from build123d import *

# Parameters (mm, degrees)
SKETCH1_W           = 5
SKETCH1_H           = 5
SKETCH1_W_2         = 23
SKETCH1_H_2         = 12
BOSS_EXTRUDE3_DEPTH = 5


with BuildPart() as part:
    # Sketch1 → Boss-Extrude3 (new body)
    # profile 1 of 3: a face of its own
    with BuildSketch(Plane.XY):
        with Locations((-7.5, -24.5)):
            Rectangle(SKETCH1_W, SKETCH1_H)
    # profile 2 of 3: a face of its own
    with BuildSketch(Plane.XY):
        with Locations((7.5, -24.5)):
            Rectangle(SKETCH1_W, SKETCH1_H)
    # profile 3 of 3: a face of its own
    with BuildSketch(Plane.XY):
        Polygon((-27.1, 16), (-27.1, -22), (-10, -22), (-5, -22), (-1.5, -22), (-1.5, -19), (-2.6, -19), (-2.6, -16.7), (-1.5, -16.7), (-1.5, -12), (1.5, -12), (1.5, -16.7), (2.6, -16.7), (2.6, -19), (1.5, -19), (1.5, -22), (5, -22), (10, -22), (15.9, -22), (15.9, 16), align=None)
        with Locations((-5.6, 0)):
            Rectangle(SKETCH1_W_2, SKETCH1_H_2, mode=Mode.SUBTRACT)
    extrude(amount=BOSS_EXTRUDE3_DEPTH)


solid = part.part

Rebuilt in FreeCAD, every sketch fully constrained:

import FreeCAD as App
import Part
import Sketcher
from FreeCAD import Vector

doc = App.newDocument("Part")
body = doc.addObject("PartDesign::Body", "Body")

sketch1 = body.newObject("Sketcher::SketchObject", "Sketch")
sketch1.AttachmentSupport = (doc.getObject("XY_Plane"), [""])
sketch1.MapMode = "FlatFace"
sketch1.addGeometry(Part.LineSegment(Vector(-10, -22, 0), Vector(-10, -27, 0)), False)
sketch1.addGeometry(Part.LineSegment(Vector(-10, -27, 0), Vector(-5, -27, 0)), False)
sketch1.addGeometry(Part.LineSegment(Vector(-5, -27, 0), Vector(-5, -22, 0)), False)
sketch1.addGeometry(Part.LineSegment(Vector(-5, -22, 0), Vector(-1.5, -22, 0)), False)
sketch1.addGeometry(Part.LineSegment(Vector(-1.5, -22, 0), Vector(-1.5, -19, 0)), False)
sketch1.addGeometry(Part.LineSegment(Vector(-1.5, -19, 0), Vector(-2.6, -19, 0)), False)
sketch1.addGeometry(Part.LineSegment(Vector(-2.6, -19, 0), Vector(-2.6, -16.7, 0)), False)
sketch1.addGeometry(Part.LineSegment(Vector(-2.6, -16.7, 0), Vector(-1.5, -16.7, 0)), False)
sketch1.addGeometry(Part.LineSegment(Vector(-1.5, -16.7, 0), Vector(-1.5, -12, 0)), False)
sketch1.addGeometry(Part.LineSegment(Vector(-1.5, -12, 0), Vector(1.5, -12, 0)), False)
sketch1.addGeometry(Part.LineSegment(Vector(1.5, -12, 0), Vector(1.5, -16.7, 0)), False)
sketch1.addGeometry(Part.LineSegment(Vector(1.5, -16.7, 0), Vector(2.6, -16.7, 0)), False)
sketch1.addGeometry(Part.LineSegment(Vector(2.6, -16.7, 0), Vector(2.6, -19, 0)), False)
sketch1.addGeometry(Part.LineSegment(Vector(2.6, -19, 0), Vector(1.5, -19, 0)), False)
sketch1.addGeometry(Part.LineSegment(Vector(1.5, -19, 0), Vector(1.5, -22, 0)), False)
sketch1.addGeometry(Part.LineSegment(Vector(1.5, -22, 0), Vector(5, -22, 0)), False)
sketch1.addGeometry(Part.LineSegment(Vector(5, -22, 0), Vector(5, -27, 0)), False)
sketch1.addGeometry(Part.LineSegment(Vector(5, -27, 0), Vector(10, -27, 0)), False)
sketch1.addGeometry(Part.LineSegment(Vector(10, -27, 0), Vector(10, -22, 0)), False)
sketch1.addGeometry(Part.LineSegment(Vector(10, -22, 0), Vector(15.9, -22, 0)), False)
sketch1.addGeometry(Part.LineSegment(Vector(15.9, -22, 0), Vector(15.9, 16, 0)), False)
sketch1.addGeometry(Part.LineSegment(Vector(15.9, 16, 0), Vector(-27.1, 16, 0)), False)
sketch1.addGeometry(Part.LineSegment(Vector(-27.1, 16, 0), Vector(-27.1, -22, 0)), False)
sketch1.addGeometry(Part.LineSegment(Vector(-27.1, -22, 0), Vector(-10, -22, 0)), False)
sketch1.addGeometry(Part.LineSegment(Vector(-17.1, -6, 0), Vector(-17.1, 6, 0)), False)
sketch1.addGeometry(Part.LineSegment(Vector(-17.1, 6, 0), Vector(5.9, 6, 0)), False)
sketch1.addGeometry(Part.LineSegment(Vector(5.9, 6, 0), Vector(5.9, -6, 0)), False)
sketch1.addGeometry(Part.LineSegment(Vector(5.9, -6, 0), Vector(-17.1, -6, 0)), False)
sketch1.addConstraint(Sketcher.Constraint("Coincident", 0, 2, 1, 1))
sketch1.addConstraint(Sketcher.Constraint("Coincident", 1, 2, 2, 1))
sketch1.addConstraint(Sketcher.Constraint("Coincident", 2, 2, 3, 1))
sketch1.addConstraint(Sketcher.Constraint("Coincident", 3, 2, 4, 1))
sketch1.addConstraint(Sketcher.Constraint("Coincident", 4, 2, 5, 1))
sketch1.addConstraint(Sketcher.Constraint("Coincident", 5, 2, 6, 1))
sketch1.addConstraint(Sketcher.Constraint("Coincident", 6, 2, 7, 1))
sketch1.addConstraint(Sketcher.Constraint("Coincident", 7, 2, 8, 1))
sketch1.addConstraint(Sketcher.Constraint("Coincident", 8, 2, 9, 1))
sketch1.addConstraint(Sketcher.Constraint("Coincident", 9, 2, 10, 1))
sketch1.addConstraint(Sketcher.Constraint("Coincident", 10, 2, 11, 1))
sketch1.addConstraint(Sketcher.Constraint("Coincident", 11, 2, 12, 1))
sketch1.addConstraint(Sketcher.Constraint("Coincident", 12, 2, 13, 1))
sketch1.addConstraint(Sketcher.Constraint("Coincident", 13, 2, 14, 1))
sketch1.addConstraint(Sketcher.Constraint("Coincident", 14, 2, 15, 1))
sketch1.addConstraint(Sketcher.Constraint("Coincident", 15, 2, 16, 1))
sketch1.addConstraint(Sketcher.Constraint("Coincident", 16, 2, 17, 1))
sketch1.addConstraint(Sketcher.Constraint("Coincident", 17, 2, 18, 1))
sketch1.addConstraint(Sketcher.Constraint("Coincident", 18, 2, 19, 1))
sketch1.addConstraint(Sketcher.Constraint("Coincident", 19, 2, 20, 1))
sketch1.addConstraint(Sketcher.Constraint("Coincident", 20, 2, 21, 1))
sketch1.addConstraint(Sketcher.Constraint("Coincident", 21, 2, 22, 1))
sketch1.addConstraint(Sketcher.Constraint("Coincident", 22, 2, 23, 1))
sketch1.addConstraint(Sketcher.Constraint("Coincident", 23, 2, 0, 1))
sketch1.addConstraint(Sketcher.Constraint("Coincident", 24, 2, 25, 1))
sketch1.addConstraint(Sketcher.Constraint("Coincident", 25, 2, 26, 1))
sketch1.addConstraint(Sketcher.Constraint("Coincident", 26, 2, 27, 1))
sketch1.addConstraint(Sketcher.Constraint("Coincident", 27, 2, 24, 1))
sketch1.addConstraint(Sketcher.Constraint("Vertical", 0))
sketch1.addConstraint(Sketcher.Constraint("Horizontal", 1))
sketch1.addConstraint(Sketcher.Constraint("Vertical", 2))
sketch1.addConstraint(Sketcher.Constraint("Horizontal", 3))
sketch1.addConstraint(Sketcher.Constraint("Vertical", 4))
sketch1.addConstraint(Sketcher.Constraint("Horizontal", 5))
sketch1.addConstraint(Sketcher.Constraint("Vertical", 6))
sketch1.addConstraint(Sketcher.Constraint("Horizontal", 7))
sketch1.addConstraint(Sketcher.Constraint("Vertical", 8))
sketch1.addConstraint(Sketcher.Constraint("Horizontal", 9))
sketch1.addConstraint(Sketcher.Constraint("Vertical", 10))
sketch1.addConstraint(Sketcher.Constraint("Horizontal", 11))
sketch1.addConstraint(Sketcher.Constraint("Vertical", 12))
sketch1.addConstraint(Sketcher.Constraint("Horizontal", 13))
sketch1.addConstraint(Sketcher.Constraint("Vertical", 14))
sketch1.addConstraint(Sketcher.Constraint("Horizontal", 15))
sketch1.addConstraint(Sketcher.Constraint("Vertical", 16))
sketch1.addConstraint(Sketcher.Constraint("Horizontal", 17))
sketch1.addConstraint(Sketcher.Constraint("Vertical", 18))
sketch1.addConstraint(Sketcher.Constraint("Horizontal", 19))
sketch1.addConstraint(Sketcher.Constraint("Vertical", 20))
sketch1.addConstraint(Sketcher.Constraint("Horizontal", 21))
sketch1.addConstraint(Sketcher.Constraint("Vertical", 22))
sketch1.addConstraint(Sketcher.Constraint("Horizontal", 23))
sketch1.addConstraint(Sketcher.Constraint("Vertical", 24))
sketch1.addConstraint(Sketcher.Constraint("Horizontal", 25))
sketch1.addConstraint(Sketcher.Constraint("Vertical", 26))
sketch1.addConstraint(Sketcher.Constraint("Horizontal", 27))
sketch1.addConstraint(Sketcher.Constraint("Symmetric", 7, 2, 10, 2, -2))
sketch1.addConstraint(Sketcher.Constraint("Symmetric", 5, 2, 12, 2, -2))
sketch1.addConstraint(Sketcher.Constraint("Symmetric", 3, 2, 14, 2, -2))
sketch1.addConstraint(Sketcher.Constraint("Symmetric", 1, 2, 16, 2, -2))
sketch1.addConstraint(Sketcher.Constraint("Symmetric", 18, 2, 23, 2, -2))
sketch1.addConstraint(Sketcher.Constraint("Horizontal", 15, 2, 18, 2))
sketch1.addConstraint(Sketcher.Constraint("Vertical", 4, 2, 7, 2))
sketch1.addConstraint(Sketcher.Constraint("Equal", 17, 0))
sketch1.addConstraint(Sketcher.Constraint("Equal", 9, 4))
sketch1.addConstraint(Sketcher.Constraint("DistanceX", 1, 1, 1, 2, 5.0))
sketch1.addConstraint(Sketcher.Constraint("DistanceX", 9, 1, 9, 2, 3.0))
sketch1.addConstraint(Sketcher.Constraint("DistanceX", 21, 2, 21, 1, 43.0))
sketch1.addConstraint(Sketcher.Constraint("DistanceX", 25, 1, 25, 2, 23.0))
sketch1.addConstraint(Sketcher.Constraint("DistanceY", 20, 1, 20, 2, 38.0))
sketch1.addConstraint(Sketcher.Constraint("DistanceY", 24, 1, 24, 2, 12.0))
sketch1.addConstraint(Sketcher.Constraint("DistanceX", 3, 1, 3, 2, 3.5))
sketch1.addConstraint(Sketcher.Constraint("DistanceX", 5, 2, 5, 1, 1.1))
sketch1.addConstraint(Sketcher.Constraint("DistanceX", 19, 1, 19, 2, 5.9))
sketch1.addConstraint(Sketcher.Constraint("DistanceY", 6, 1, 6, 2, 2.3))
sketch1.addConstraint(Sketcher.Constraint("DistanceY", 8, 1, 8, 2, 4.7))
sketch1.addConstraint(Sketcher.Constraint("DistanceY", 0, 2, -1, 1, 27.0))
sketch1.addConstraint(Sketcher.Constraint("DistanceY", -1, 1, 24, 2, 6.0))
sketch1.addConstraint(Sketcher.Constraint("DistanceX", 21, 2, 24, 2, 10.0))
pad1 = body.newObject("PartDesign::Pad", "Pad")
pad1.Profile = sketch1
pad1.Length = 5

doc.recompute()
